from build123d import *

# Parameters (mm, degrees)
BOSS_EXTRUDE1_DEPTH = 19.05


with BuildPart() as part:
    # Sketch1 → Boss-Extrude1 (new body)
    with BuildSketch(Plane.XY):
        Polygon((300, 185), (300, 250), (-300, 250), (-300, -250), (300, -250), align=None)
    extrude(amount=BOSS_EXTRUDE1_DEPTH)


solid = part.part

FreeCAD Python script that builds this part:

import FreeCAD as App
import Part
import Sketcher

V = App.Vector

doc = App.newDocument("Part")
body = doc.addObject("PartDesign::Body", "Body")

# Sketch on XY plane
sketch1 = body.newObject("Sketcher::SketchObject", "Sketch")
sketch1.AttachmentSupport = (doc.getObject("XY_Plane"), [""])
sketch1.MapMode = "FlatFace"
sketch1.addGeometry([
    Part.LineSegment(V(300, 250, 0), V(-300, 250, 0)),
    Part.LineSegment(V(-300, 250, 0), V(-300, -250, 0)),
    Part.LineSegment(V(-300, -250, 0), V(300, -250, 0)),
    Part.LineSegment(V(300, -250, 0), V(300, 250, 0)),
], False)
sketch1.addConstraint([
    Sketcher.Constraint("Coincident", 0, 2, 1, 1),
    Sketcher.Constraint("Coincident", 1, 2, 2, 1),
    Sketcher.Constraint("Coincident", 2, 2, 3, 1),
    Sketcher.Constraint("Coincident", 3, 2, 0, 1),
    Sketcher.Constraint("Horizontal", 0),
    Sketcher.Constraint("Vertical", 1),
    Sketcher.Constraint("Horizontal", 2),
    Sketcher.Constraint("Vertical", 3),
    Sketcher.Constraint("Symmetric", 0, 2, 2, 2, -1, 1),
    Sketcher.Constraint("DistanceX", 0, 2, 0, 1, 600.0),
    Sketcher.Constraint("DistanceY", 1, 2, 1, 1, 500.0),
])
pad1 = body.newObject("PartDesign::Pad", "Pad")
pad1.Profile = sketch1
pad1.Length = 19.05

doc.recompute()
